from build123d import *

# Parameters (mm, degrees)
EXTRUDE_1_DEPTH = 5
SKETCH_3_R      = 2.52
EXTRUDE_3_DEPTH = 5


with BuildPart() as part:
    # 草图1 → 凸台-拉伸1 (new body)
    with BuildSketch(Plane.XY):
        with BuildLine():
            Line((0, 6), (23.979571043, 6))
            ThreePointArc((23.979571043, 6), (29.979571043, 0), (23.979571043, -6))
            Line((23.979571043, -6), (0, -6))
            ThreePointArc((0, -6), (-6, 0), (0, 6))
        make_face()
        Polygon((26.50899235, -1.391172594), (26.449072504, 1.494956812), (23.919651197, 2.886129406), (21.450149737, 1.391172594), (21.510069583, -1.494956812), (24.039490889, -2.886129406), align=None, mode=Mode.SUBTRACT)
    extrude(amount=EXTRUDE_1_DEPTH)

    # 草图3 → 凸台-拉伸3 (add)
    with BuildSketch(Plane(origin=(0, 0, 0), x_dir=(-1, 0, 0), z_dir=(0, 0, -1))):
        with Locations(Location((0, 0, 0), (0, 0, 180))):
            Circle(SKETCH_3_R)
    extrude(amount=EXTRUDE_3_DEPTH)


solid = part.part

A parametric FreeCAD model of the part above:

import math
import FreeCAD as App
import Part
import Sketcher

V = App.Vector


def add_polygon(sketch, points):
    """Adds a closed chain of lines whose ends are joined by coincident constraints."""
    first, n = sketch.GeometryCount, len(points)
    for a, b in zip(points, points[1:] + points[:1]):
        sketch.addGeometry(Part.LineSegment(App.Vector(*a, 0), App.Vector(*b, 0)), False)
    for i in range(n):
        sketch.addConstraint(Sketcher.Constraint("Coincident", first + i, 2, first + (i + 1) % n, 1))

doc = App.newDocument("Part")
body = doc.addObject("PartDesign::Body", "Body")

# Sketch on XY plane
sketch1 = doc.addObject("Sketcher::SketchObject", "Sketch")
body.addObject(sketch1)
sketch1.AttachmentSupport = (doc.XY_Plane, [""])
sketch1.MapMode = "FlatFace"
sketch1.addGeometry(Part.LineSegment(V(23.979571, 6, 0), V(0, 6, 0)), False)  # 0
sketch1.addGeometry(Part.ArcOfCircle(Part.Circle(V(0, 0, 0), V(0, 0, 1), 6), math.radians(90), math.radians(270)), False)  # 1
sketch1.addGeometry(Part.LineSegment(V(0, -6, 0), V(23.979571, -6, 0)), False)  # 2
sketch1.addGeometry(Part.ArcOfCircle(Part.Circle(V(23.979571, 0, 0), V(0, 0, 1), 6), math.radians(-90), math.radians(90)), False)  # 3
add_polygon(sketch1, [(26.508992, -1.391173), (24.039491, -2.886129), (21.51007, -1.494957), (21.45015, 1.391173), (23.919651, 2.886129), (26.449073, 1.494957)])  # lines 4-9
sketch1.addConstraint(Sketcher.Constraint("Tangent", 0, 2, 1, 1))
sketch1.addConstraint(Sketcher.Constraint("Tangent", 1, 2, 2, 1))
sketch1.addConstraint(Sketcher.Constraint("Tangent", 2, 2, 3, 1))
sketch1.addConstraint(Sketcher.Constraint("Tangent", 3, 2, 0, 1))
sketch1.addConstraint(Sketcher.Constraint("Horizontal", 0))
sketch1.addConstraint(Sketcher.Constraint("Horizontal", 2))
sketch1.addConstraint(Sketcher.Constraint("Coincident", 1, 3, -1, 1))
sketch1.addConstraint(Sketcher.Constraint("Parallel", 4, 7))
sketch1.addConstraint(Sketcher.Constraint("Parallel", 5, 8))
sketch1.addConstraint(Sketcher.Constraint("Parallel", 6, 9))
sketch1.addConstraint(Sketcher.Constraint("Equal", 4, 5))
sketch1.addConstraint(Sketcher.Constraint("Equal", 5, 6))
sketch1.addConstraint(Sketcher.Constraint("Equal", 6, 7))
sketch1.addConstraint(Sketcher.Constraint("Radius", 1, 6.0))
sketch1.addConstraint(Sketcher.Constraint("DistanceX", 0, 2, 0, 1, 23.979571))
sketch1.addConstraint(Sketcher.Constraint("DistanceX", 5, 2, 3, 3, 2.469501))
sketch1.addConstraint(Sketcher.Constraint("DistanceY", 4, 2, 6, 2, 4.277302))
sketch1.addConstraint(Sketcher.Constraint("DistanceX", 6, 2, 7, 2, 2.469501))
sketch1.addConstraint(Sketcher.Constraint("DistanceX", 3, 3, 8, 2, 2.469501))
sketch1.addConstraint(Sketcher.Constraint("Distance", 4, 2.886751))
sketch1.addConstraint(Sketcher.Constraint("DistanceY", 4, 2, -1, 1, 2.886129))
pad1 = doc.addObject("PartDesign::Pad", "Pad")
body.addObject(pad1)
pad1.Profile = sketch1
pad1.Length = 5

# Sketch on XY plane
sketch2 = doc.addObject("Sketcher::SketchObject", "Sketch001")
body.addObject(sketch2)
sketch2.AttachmentSupport = (doc.XY_Plane, [""])
sketch2.MapMode = "FlatFace"
sketch2.addGeometry(Part.Circle(V(0, 0, 0), V(0, 0, 1), 2.52), False)
sketch2.addConstraint(Sketcher.Constraint("Coincident", 0, 3, -1, 1))
sketch2.addConstraint(Sketcher.Constraint("Diameter", 0, 5.04))
pad2 = doc.addObject("PartDesign::Pad", "Pad001")
body.addObject(pad2)
pad2.Profile = sketch2
pad2.Length = 5
pad2.Reversed = True

doc.recompute()
